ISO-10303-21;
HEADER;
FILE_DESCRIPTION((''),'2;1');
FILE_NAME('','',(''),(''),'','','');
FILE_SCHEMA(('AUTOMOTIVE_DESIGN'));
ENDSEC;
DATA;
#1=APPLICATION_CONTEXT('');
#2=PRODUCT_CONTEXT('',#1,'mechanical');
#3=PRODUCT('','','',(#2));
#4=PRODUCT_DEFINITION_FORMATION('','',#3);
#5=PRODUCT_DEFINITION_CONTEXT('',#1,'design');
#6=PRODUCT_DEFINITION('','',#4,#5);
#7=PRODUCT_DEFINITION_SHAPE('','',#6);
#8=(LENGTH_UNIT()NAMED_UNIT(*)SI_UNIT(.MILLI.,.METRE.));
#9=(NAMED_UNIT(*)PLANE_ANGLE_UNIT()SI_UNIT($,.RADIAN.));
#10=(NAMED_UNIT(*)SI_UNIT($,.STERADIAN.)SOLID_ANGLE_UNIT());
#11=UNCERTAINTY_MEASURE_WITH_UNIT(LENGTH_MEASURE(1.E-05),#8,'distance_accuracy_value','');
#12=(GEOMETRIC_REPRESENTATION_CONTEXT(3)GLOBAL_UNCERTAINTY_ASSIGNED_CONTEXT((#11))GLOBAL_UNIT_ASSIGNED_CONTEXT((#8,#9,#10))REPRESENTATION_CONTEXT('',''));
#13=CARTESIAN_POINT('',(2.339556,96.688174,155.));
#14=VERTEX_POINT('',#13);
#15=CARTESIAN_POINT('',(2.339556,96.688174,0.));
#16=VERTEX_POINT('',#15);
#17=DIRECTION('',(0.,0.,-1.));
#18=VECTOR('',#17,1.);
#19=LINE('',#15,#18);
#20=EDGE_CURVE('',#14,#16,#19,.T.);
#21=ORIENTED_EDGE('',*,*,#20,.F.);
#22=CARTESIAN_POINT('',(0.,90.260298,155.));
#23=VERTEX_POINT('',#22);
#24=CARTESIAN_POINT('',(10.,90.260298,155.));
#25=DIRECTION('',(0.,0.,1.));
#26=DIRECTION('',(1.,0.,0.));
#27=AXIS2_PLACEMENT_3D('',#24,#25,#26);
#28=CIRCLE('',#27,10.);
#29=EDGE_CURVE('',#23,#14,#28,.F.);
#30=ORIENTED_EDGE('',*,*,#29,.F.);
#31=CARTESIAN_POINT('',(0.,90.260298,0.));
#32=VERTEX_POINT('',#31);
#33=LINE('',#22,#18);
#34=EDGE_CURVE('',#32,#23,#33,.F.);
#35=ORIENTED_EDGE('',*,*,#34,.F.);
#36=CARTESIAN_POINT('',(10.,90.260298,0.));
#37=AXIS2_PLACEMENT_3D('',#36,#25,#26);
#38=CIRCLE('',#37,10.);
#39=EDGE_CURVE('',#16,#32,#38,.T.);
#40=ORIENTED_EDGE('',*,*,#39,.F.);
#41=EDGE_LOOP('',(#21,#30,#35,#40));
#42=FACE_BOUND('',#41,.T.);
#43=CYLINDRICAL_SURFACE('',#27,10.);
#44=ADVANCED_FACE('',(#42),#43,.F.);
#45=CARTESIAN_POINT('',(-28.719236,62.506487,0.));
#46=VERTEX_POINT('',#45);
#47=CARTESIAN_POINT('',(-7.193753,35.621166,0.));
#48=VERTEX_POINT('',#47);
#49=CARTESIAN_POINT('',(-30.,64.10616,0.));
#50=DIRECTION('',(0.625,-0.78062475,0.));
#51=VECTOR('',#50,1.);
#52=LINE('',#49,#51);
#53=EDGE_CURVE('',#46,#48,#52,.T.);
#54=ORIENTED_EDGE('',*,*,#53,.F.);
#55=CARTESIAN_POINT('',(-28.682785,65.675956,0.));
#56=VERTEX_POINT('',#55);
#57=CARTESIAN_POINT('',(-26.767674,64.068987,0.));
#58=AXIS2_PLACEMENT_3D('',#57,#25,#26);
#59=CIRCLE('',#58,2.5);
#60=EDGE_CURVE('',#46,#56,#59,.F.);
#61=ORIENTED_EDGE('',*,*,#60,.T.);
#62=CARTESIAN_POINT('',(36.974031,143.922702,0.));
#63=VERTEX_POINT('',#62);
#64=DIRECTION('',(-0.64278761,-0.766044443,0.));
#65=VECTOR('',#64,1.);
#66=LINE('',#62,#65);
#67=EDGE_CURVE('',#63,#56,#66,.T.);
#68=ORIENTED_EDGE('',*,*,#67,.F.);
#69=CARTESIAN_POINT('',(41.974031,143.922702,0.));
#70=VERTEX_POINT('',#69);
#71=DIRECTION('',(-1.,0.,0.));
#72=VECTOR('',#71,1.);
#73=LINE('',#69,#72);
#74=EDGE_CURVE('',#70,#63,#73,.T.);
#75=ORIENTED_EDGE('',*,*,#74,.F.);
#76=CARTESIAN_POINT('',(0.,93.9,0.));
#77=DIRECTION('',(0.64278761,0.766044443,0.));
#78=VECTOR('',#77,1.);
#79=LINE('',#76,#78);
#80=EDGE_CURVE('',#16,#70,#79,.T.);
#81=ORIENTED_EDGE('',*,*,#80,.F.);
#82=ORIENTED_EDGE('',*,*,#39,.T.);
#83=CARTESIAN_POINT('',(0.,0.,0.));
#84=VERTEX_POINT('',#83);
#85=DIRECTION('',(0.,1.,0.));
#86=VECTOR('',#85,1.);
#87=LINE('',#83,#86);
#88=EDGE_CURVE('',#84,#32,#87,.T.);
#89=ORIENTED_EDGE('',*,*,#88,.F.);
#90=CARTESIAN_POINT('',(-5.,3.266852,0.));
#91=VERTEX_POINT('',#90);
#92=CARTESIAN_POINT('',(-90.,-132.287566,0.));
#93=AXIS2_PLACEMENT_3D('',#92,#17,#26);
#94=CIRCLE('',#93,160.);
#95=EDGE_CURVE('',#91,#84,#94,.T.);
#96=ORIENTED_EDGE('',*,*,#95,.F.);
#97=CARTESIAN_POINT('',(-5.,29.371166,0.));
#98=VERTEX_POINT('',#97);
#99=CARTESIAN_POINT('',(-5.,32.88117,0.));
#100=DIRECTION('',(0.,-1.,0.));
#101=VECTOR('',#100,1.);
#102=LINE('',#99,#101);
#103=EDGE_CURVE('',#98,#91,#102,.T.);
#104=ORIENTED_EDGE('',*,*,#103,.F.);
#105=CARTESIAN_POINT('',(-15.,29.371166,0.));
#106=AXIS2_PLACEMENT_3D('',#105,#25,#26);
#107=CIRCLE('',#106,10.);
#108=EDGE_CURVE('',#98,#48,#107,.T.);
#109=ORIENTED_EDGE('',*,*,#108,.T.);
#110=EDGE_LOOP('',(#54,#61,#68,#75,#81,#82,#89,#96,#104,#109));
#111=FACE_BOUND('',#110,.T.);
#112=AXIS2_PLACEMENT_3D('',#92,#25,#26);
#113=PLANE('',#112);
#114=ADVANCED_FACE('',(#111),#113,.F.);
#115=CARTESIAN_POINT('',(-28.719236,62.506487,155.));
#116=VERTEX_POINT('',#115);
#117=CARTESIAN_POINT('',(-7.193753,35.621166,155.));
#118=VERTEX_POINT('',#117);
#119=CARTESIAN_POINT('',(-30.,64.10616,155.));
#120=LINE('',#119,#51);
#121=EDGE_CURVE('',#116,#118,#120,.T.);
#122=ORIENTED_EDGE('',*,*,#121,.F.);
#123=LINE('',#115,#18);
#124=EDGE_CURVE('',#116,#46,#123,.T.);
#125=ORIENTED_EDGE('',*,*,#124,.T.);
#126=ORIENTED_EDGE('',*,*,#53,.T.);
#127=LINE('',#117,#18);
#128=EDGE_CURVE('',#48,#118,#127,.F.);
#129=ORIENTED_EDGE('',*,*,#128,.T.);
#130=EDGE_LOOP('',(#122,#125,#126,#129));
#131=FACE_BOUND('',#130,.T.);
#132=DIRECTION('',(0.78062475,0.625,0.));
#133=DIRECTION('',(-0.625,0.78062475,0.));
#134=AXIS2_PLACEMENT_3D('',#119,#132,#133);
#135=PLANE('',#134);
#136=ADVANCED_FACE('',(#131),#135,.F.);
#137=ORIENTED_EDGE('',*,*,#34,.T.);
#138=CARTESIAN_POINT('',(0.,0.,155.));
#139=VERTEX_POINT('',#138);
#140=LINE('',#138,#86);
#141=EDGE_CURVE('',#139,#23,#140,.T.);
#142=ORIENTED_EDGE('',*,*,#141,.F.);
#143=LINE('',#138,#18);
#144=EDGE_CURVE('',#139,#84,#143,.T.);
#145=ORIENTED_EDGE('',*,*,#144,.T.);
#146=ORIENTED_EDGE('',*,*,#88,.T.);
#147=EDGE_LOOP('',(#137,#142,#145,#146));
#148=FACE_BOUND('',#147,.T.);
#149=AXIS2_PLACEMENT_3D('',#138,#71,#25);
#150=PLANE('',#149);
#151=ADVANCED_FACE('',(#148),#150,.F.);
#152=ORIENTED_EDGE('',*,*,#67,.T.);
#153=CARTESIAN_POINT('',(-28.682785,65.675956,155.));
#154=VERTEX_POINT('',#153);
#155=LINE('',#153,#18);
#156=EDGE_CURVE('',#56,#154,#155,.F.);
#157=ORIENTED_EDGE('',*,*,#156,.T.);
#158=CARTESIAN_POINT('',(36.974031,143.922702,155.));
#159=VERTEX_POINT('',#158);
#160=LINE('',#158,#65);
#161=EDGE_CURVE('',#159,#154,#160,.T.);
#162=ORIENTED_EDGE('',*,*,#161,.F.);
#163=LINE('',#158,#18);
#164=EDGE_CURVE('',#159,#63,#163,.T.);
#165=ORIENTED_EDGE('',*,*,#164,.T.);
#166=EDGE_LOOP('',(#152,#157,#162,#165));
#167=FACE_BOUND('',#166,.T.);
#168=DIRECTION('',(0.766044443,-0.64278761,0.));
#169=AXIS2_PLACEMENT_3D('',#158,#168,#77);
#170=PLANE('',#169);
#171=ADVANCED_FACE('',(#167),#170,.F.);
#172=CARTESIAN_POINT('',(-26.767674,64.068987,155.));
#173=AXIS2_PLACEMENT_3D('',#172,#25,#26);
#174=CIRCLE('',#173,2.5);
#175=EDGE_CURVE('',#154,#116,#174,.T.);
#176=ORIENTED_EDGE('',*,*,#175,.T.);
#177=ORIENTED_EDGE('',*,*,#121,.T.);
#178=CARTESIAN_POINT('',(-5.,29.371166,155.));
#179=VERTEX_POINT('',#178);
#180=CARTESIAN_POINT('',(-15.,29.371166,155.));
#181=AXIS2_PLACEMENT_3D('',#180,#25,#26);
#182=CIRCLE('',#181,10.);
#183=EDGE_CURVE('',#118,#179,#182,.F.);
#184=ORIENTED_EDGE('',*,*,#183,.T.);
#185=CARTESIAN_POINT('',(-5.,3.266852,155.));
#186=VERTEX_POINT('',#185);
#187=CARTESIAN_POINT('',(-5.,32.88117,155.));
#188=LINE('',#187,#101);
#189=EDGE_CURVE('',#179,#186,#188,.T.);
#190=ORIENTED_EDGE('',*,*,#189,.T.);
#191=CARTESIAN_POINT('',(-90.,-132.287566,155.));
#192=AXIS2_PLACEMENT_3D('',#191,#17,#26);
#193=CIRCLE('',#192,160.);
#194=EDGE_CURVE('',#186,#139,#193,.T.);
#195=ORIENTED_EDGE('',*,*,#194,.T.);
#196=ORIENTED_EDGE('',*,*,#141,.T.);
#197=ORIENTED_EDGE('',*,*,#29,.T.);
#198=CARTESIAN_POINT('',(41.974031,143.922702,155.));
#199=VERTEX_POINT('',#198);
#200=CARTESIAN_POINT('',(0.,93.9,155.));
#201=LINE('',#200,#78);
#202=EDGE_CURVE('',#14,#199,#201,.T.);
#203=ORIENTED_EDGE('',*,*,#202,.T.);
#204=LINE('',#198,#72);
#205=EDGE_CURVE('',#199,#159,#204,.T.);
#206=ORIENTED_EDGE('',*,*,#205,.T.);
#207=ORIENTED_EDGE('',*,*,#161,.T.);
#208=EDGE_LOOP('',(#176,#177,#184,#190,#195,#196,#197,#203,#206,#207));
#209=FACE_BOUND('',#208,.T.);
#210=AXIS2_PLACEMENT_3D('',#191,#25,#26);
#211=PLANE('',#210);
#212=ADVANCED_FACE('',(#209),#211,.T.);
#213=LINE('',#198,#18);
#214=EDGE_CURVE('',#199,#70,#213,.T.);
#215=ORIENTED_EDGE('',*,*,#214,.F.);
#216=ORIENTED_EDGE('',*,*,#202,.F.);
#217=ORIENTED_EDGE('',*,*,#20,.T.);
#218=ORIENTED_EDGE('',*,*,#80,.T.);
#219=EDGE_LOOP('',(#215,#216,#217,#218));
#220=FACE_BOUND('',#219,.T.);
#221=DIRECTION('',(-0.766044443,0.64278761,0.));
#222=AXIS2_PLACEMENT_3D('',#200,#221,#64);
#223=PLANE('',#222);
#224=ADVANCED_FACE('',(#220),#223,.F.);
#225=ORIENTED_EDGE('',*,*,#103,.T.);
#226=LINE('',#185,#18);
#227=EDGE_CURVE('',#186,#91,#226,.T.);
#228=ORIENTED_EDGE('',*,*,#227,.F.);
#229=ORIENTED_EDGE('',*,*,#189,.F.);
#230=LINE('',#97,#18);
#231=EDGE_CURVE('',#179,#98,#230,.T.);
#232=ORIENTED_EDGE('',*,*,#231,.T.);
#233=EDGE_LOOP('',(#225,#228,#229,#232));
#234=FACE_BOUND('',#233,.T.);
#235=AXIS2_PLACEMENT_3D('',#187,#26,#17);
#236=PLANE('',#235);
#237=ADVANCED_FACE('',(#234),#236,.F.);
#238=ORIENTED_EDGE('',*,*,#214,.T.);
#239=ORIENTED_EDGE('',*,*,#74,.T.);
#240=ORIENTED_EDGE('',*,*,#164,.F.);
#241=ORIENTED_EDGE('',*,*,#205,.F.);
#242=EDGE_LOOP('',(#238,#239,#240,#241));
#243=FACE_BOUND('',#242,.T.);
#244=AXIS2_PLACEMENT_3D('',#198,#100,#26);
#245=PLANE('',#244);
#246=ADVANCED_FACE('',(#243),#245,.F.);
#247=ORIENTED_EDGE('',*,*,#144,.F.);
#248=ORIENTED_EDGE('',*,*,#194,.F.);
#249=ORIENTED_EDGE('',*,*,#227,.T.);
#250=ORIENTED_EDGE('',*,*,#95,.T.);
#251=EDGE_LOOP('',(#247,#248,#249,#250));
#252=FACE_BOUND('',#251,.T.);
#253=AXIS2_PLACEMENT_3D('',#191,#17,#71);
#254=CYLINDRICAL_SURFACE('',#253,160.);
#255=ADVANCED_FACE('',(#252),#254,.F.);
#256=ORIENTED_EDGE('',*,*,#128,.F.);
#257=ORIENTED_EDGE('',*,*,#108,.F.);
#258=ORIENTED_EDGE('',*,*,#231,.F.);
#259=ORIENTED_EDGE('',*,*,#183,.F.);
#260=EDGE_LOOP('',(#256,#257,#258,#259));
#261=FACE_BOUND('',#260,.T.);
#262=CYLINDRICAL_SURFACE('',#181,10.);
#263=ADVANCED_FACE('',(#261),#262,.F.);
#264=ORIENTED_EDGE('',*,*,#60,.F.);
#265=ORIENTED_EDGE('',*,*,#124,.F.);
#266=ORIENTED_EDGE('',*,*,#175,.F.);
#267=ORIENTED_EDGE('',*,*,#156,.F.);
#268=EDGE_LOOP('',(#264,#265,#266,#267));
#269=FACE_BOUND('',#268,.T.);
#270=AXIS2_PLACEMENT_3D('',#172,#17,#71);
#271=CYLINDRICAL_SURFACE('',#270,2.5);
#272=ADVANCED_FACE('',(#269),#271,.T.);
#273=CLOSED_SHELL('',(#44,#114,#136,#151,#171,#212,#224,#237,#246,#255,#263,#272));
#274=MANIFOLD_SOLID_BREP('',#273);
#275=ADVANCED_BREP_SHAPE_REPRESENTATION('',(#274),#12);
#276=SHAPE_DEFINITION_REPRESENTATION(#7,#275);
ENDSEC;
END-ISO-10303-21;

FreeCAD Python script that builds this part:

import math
import FreeCAD as App
import Part
import Sketcher
from FreeCAD import Vector
Q = App.Units.Quantity


def edges_at(feature, points):
    """Names of the edges that pass closest to the given points."""
    edges = feature.Shape.Edges
    near = lambda p: min(range(len(edges)), key=lambda i: edges[i].distToShape(Part.Vertex(*p))[0])
    return sorted({f"Edge{near(p) + 1}" for p in points})

doc = App.newDocument("Part")
body = doc.addObject("PartDesign::Body", "Body")

sketch1 = body.newObject("Sketcher::SketchObject", "Sketch")
sketch1.AttachmentSupport = (doc.getObject("XY_Plane"), [""])
sketch1.MapMode = "FlatFace"
sketch1.addGeometry([
    Part.LineSegment(Vector(0, 0, 0), Vector(0, 93.9, 0)),
    Part.LineSegment(Vector(0, 93.9, 0), Vector(41.974031, 143.922702, 0)),
    Part.LineSegment(Vector(41.974031, 143.922702, 0), Vector(36.974031, 143.922702, 0)),
    Part.LineSegment(Vector(36.974031, 143.922702, 0), Vector(-30, 64.10616, 0)),
    Part.LineSegment(Vector(-30, 64.10616, 0), Vector(-5, 32.88117, 0)),
    Part.LineSegment(Vector(-5, 32.88117, 0), Vector(-5, 3.266852, 0)),
    Part.ArcOfCircle(Part.Circle(Vector(-90.000001, -132.287568, 0), Vector(0, 0, 1), 160.000003), math.radians(55.771134), math.radians(57.910049)),
], False)
sketch1.addConstraint([
    Sketcher.Constraint("Coincident", 0, 2, 1, 1),
    Sketcher.Constraint("Coincident", 1, 2, 2, 1),
    Sketcher.Constraint("Coincident", 2, 2, 3, 1),
    Sketcher.Constraint("Coincident", 3, 2, 4, 1),
    Sketcher.Constraint("Coincident", 4, 2, 5, 1),
    Sketcher.Constraint("Coincident", 5, 2, 6, 2),
    Sketcher.Constraint("Coincident", 6, 1, 0, 1),
    Sketcher.Constraint("Vertical", 0),
    Sketcher.Constraint("Horizontal", 2),
    Sketcher.Constraint("Vertical", 5),
    Sketcher.Constraint("Coincident", 6, 1, -1, 1),
    Sketcher.Constraint("Parallel", 1, 3),
    Sketcher.Constraint("DistanceX", 2, 2, 2, 1, 5.0),
    Sketcher.Constraint("Angle", 1, Q("50 deg")),
    Sketcher.Constraint("Distance", 4, 40.0),
    Sketcher.Constraint("DistanceY", 0, 1, 0, 2, 93.9),
    Sketcher.Constraint("DistanceX", 6, 3, -1, 1, 90.000001),
    Sketcher.Constraint("DistanceX", 3, 2, -1, 1, 30.0),
    Sketcher.Constraint("DistanceX", 4, 2, -1, 1, 5.0),
    Sketcher.Constraint("Distance", 1, 65.3),
    Sketcher.Constraint("Radius", 6, 160.000003),
])
pad1 = body.newObject("PartDesign::Pad", "Pad")
pad1.Profile = sketch1
pad1.Length = 155
doc.recompute()

fillet = body.newObject("PartDesign::Fillet", "Fillet")
fillet.Base = (pad1, edges_at(pad1, [(-5, 32.881, 77.5), (0, 93.9, 77.5)]))
fillet.Radius = 10
doc.recompute()

fillet2 = body.newObject("PartDesign::Fillet", "Fillet001")
fillet2.Base = (fillet, edges_at(fillet, [(-30, 64.106, 77.5)]))
fillet2.Radius = 2.5

doc.recompute()
